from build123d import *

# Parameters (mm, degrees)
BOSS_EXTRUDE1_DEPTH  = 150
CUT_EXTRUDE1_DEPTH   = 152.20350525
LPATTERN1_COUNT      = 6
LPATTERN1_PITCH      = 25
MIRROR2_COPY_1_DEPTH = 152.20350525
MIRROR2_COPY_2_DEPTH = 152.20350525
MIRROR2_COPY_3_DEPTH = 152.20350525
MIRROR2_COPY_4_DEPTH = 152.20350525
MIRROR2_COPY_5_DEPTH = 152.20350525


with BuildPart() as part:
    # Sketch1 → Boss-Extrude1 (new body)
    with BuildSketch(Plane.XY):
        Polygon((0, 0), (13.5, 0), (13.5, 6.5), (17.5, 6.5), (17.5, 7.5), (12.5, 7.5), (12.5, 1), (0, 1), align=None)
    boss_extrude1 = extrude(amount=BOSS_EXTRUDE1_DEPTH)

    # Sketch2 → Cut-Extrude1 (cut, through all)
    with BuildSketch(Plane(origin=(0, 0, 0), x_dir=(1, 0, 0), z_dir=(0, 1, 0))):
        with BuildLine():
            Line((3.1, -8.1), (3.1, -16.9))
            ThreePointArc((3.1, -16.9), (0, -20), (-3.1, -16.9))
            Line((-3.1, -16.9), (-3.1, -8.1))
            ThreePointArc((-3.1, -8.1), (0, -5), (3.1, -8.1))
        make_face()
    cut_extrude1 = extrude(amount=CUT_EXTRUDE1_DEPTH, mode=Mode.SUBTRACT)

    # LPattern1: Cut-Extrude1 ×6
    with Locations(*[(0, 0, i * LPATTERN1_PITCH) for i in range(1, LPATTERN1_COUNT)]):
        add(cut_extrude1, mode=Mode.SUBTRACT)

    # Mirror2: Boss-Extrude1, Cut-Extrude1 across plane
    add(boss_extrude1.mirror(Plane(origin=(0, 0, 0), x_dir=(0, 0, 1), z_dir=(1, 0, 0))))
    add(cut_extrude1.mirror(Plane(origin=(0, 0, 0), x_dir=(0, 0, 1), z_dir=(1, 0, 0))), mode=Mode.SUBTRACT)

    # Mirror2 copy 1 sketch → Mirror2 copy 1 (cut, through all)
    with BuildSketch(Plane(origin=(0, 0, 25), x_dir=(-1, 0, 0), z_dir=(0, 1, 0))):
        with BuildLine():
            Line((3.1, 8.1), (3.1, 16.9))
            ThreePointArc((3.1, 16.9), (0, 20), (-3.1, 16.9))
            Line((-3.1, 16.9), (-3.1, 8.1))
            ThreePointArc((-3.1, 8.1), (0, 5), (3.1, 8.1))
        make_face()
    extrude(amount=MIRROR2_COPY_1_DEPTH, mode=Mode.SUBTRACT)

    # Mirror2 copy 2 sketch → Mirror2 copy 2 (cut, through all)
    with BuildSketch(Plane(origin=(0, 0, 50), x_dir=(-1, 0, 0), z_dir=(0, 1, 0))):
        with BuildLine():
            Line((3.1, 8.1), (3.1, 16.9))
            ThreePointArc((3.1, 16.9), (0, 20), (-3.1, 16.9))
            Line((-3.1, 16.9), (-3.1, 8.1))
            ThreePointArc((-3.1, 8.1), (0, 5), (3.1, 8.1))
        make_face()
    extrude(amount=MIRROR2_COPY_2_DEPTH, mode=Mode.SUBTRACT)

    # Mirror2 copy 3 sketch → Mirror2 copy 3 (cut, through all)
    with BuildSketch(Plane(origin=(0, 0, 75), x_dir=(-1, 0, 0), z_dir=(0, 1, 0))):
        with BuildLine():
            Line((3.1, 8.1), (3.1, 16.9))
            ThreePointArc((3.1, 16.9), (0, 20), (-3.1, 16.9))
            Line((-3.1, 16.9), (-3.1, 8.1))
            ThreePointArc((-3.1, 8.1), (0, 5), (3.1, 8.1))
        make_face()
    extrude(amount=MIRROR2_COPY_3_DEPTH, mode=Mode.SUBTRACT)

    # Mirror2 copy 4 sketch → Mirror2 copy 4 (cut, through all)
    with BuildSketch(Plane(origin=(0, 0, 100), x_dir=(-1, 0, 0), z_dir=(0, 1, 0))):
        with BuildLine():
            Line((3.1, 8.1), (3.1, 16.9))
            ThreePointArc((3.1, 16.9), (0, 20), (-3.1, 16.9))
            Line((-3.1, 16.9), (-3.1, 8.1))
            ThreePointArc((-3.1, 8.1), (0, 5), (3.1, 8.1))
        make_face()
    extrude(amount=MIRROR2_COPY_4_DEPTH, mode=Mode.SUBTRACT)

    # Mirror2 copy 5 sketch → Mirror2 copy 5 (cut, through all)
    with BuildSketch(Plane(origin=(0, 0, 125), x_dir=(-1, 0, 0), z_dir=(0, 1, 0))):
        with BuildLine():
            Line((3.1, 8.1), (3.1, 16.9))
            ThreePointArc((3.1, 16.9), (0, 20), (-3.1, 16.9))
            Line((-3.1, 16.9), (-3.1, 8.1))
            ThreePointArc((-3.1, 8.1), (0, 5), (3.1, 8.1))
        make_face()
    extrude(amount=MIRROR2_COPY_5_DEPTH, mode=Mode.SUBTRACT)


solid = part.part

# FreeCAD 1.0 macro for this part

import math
import FreeCAD as App
import Part
import Sketcher
Q = App.Units.Quantity


def add_polygon(sketch, points):
    """Adds a closed chain of lines whose ends are joined by coincident constraints."""
    first, n = sketch.GeometryCount, len(points)
    for a, b in zip(points, points[1:] + points[:1]):
        sketch.addGeometry(Part.LineSegment(App.Vector(*a, 0), App.Vector(*b, 0)), False)
    for i in range(n):
        sketch.addConstraint(Sketcher.Constraint("Coincident", first + i, 2, first + (i + 1) % n, 1))

doc = App.newDocument("Part")
body = doc.addObject("PartDesign::Body", "Body")

# Sketch on XY plane
sketch1 = doc.addObject("Sketcher::SketchObject", "Sketch")
body.addObject(sketch1)
sketch1.AttachmentSupport = (doc.XY_Plane, [""])
sketch1.MapMode = "FlatFace"
add_polygon(sketch1, [(0, 0), (13.5, 0), (13.5, 6.5), (17.5, 6.5), (17.5, 7.5), (12.5, 7.5), (12.5, 1), (0, 1)])  # lines 0-7
sketch1.addConstraint(Sketcher.Constraint("Horizontal", 0))
sketch1.addConstraint(Sketcher.Constraint("Vertical", 1))
sketch1.addConstraint(Sketcher.Constraint("Horizontal", 2))
sketch1.addConstraint(Sketcher.Constraint("Vertical", 3))
sketch1.addConstraint(Sketcher.Constraint("Horizontal", 4))
sketch1.addConstraint(Sketcher.Constraint("Vertical", 5))
sketch1.addConstraint(Sketcher.Constraint("Horizontal", 6))
sketch1.addConstraint(Sketcher.Constraint("Vertical", 7))
sketch1.addConstraint(Sketcher.Constraint("Coincident", 7, 2, -1, 1))
sketch1.addConstraint(Sketcher.Constraint("Equal", 1, 5))
sketch1.addConstraint(Sketcher.Constraint("DistanceX", 2, 1, 2, 2, Q("4 mm")))
sketch1.addConstraint(Sketcher.Constraint("DistanceX", 4, 2, 4, 1, Q("5 mm")))
sketch1.addConstraint(Sketcher.Constraint("DistanceY", 3, 1, 3, 2, Q("1 mm")))
sketch1.addConstraint(Sketcher.Constraint("DistanceX", 0, 1, 0, 2, Q("13.5 mm")))
sketch1.addConstraint(Sketcher.Constraint("DistanceY", 1, 1, 1, 2, Q("6.5 mm")))
pad1 = doc.addObject("PartDesign::Pad", "Pad")
body.addObject(pad1)
pad1.Profile = sketch1
pad1.Length = 150

# Sketch on XZ plane
sketch2 = doc.addObject("Sketcher::SketchObject", "Sketch001")
body.addObject(sketch2)
sketch2.AttachmentSupport = (doc.XZ_Plane, [""])
sketch2.MapMode = "FlatFace"
sketch2.addGeometry(Part.LineSegment(App.Vector(3.1, 16.9, 0), App.Vector(3.1, 8.1, 0)), False)
sketch2.addGeometry(Part.ArcOfCircle(Part.Circle(App.Vector(0, 8.1, 0), App.Vector(0, 0, 1), 3.1), math.radians(180), math.radians(360)), False)
sketch2.addGeometry(Part.LineSegment(App.Vector(-3.1, 8.1, 0), App.Vector(-3.1, 16.9, 0)), False)
sketch2.addGeometry(Part.ArcOfCircle(Part.Circle(App.Vector(0, 16.9, 0), App.Vector(0, 0, 1), 3.1), math.radians(0), math.radians(180)), False)
sketch2.addConstraint(Sketcher.Constraint("Tangent", 0, 2, 1, 2))
sketch2.addConstraint(Sketcher.Constraint("Tangent", 1, 1, 2, 1))
sketch2.addConstraint(Sketcher.Constraint("Tangent", 2, 2, 3, 2))
sketch2.addConstraint(Sketcher.Constraint("Tangent", 3, 1, 0, 1))
sketch2.addConstraint(Sketcher.Constraint("Vertical", 0))
sketch2.addConstraint(Sketcher.Constraint("Vertical", 2))
sketch2.addConstraint(Sketcher.Constraint("PointOnObject", 1, 3, -2))
sketch2.addConstraint(Sketcher.Constraint("Radius", 1, Q("3.1 mm")))
sketch2.addConstraint(Sketcher.Constraint("DistanceY", 0, 2, 0, 1, Q("8.8 mm")))
sketch2.addConstraint(Sketcher.Constraint("DistanceY", -1, 1, 1, 3, Q("8.1 mm")))
pocket1 = doc.addObject("PartDesign::Pocket", "Pocket")
body.addObject(pocket1)
pocket1.Profile = sketch2
pocket1.Type = "ThroughAll"
doc.recompute()

linearpattern = doc.addObject("PartDesign::LinearPattern", "LinearPattern")
body.addObject(linearpattern)
linearpattern.Originals = [pocket1]
linearpattern.Direction = (doc.Z_Axis, [""])
linearpattern.Mode = "offset"
linearpattern.Offset = 25
linearpattern.Occurrences = 6
body.Tip = linearpattern
doc.recompute()

mirrored = doc.addObject("PartDesign::Mirrored", "Mirrored")
body.addObject(mirrored)
mirrored.Originals = [pad1, pocket1]
mirrored.MirrorPlane = (doc.YZ_Plane, [""])
body.Tip = mirrored

# Sketch on XZ plane
sketch3 = doc.addObject("Sketcher::SketchObject", "Sketch002")
body.addObject(sketch3)
sketch3.AttachmentSupport = (doc.XZ_Plane, [""])
sketch3.MapMode = "FlatFace"
sketch3.addGeometry(Part.LineSegment(App.Vector(-3.1, 33.1, 0), App.Vector(-3.1, 41.9, 0)), False)
sketch3.addGeometry(Part.ArcOfCircle(Part.Circle(App.Vector(0, 41.9, 0), App.Vector(0, 0, 1), 3.1), math.radians(0), math.radians(180)), False)
sketch3.addGeometry(Part.LineSegment(App.Vector(3.1, 41.9, 0), App.Vector(3.1, 33.1, 0)), False)
sketch3.addGeometry(Part.ArcOfCircle(Part.Circle(App.Vector(0, 33.1, 0), App.Vector(0, 0, 1), 3.1), math.radians(180), math.radians(360)), False)
sketch3.addConstraint(Sketcher.Constraint("Tangent", 0, 2, 1, 2))
sketch3.addConstraint(Sketcher.Constraint("Tangent", 1, 1, 2, 1))
sketch3.addConstraint(Sketcher.Constraint("Tangent", 2, 2, 3, 2))
sketch3.addConstraint(Sketcher.Constraint("Tangent", 3, 1, 0, 1))
sketch3.addConstraint(Sketcher.Constraint("Vertical", 0))
sketch3.addConstraint(Sketcher.Constraint("Vertical", 2))
sketch3.addConstraint(Sketcher.Constraint("PointOnObject", 1, 3, -2))
sketch3.addConstraint(Sketcher.Constraint("Radius", 1, Q("3.1 mm")))
sketch3.addConstraint(Sketcher.Constraint("DistanceY", 0, 1, 0, 2, Q("8.8 mm")))
sketch3.addConstraint(Sketcher.Constraint("DistanceY", -1, 1, 1, 3, Q("41.9 mm")))
pocket2 = doc.addObject("PartDesign::Pocket", "Pocket001")
body.addObject(pocket2)
pocket2.Profile = sketch3
pocket2.Type = "ThroughAll"

# Sketch on XZ plane
sketch4 = doc.addObject("Sketcher::SketchObject", "Sketch003")
body.addObject(sketch4)
sketch4.AttachmentSupport = (doc.XZ_Plane, [""])
sketch4.MapMode = "FlatFace"
sketch4.addGeometry(Part.LineSegment(App.Vector(-3.1, 58.1, 0), App.Vector(-3.1, 66.9, 0)), False)
sketch4.addGeometry(Part.ArcOfCircle(Part.Circle(App.Vector(0, 66.9, 0), App.Vector(0, 0, 1), 3.1), math.radians(0), math.radians(180)), False)
sketch4.addGeometry(Part.LineSegment(App.Vector(3.1, 66.9, 0), App.Vector(3.1, 58.1, 0)), False)
sketch4.addGeometry(Part.ArcOfCircle(Part.Circle(App.Vector(0, 58.1, 0), App.Vector(0, 0, 1), 3.1), math.radians(180), math.radians(360)), False)
sketch4.addConstraint(Sketcher.Constraint("Tangent", 0, 2, 1, 2))
sketch4.addConstraint(Sketcher.Constraint("Tangent", 1, 1, 2, 1))
sketch4.addConstraint(Sketcher.Constraint("Tangent", 2, 2, 3, 2))
sketch4.addConstraint(Sketcher.Constraint("Tangent", 3, 1, 0, 1))
sketch4.addConstraint(Sketcher.Constraint("Vertical", 0))
sketch4.addConstraint(Sketcher.Constraint("Vertical", 2))
sketch4.addConstraint(Sketcher.Constraint("PointOnObject", 1, 3, -2))
sketch4.addConstraint(Sketcher.Constraint("Radius", 1, Q("3.1 mm")))
sketch4.addConstraint(Sketcher.Constraint("DistanceY", 0, 1, 0, 2, Q("8.8 mm")))
sketch4.addConstraint(Sketcher.Constraint("DistanceY", -1, 1, 1, 3, Q("66.9 mm")))
pocket3 = doc.addObject("PartDesign::Pocket", "Pocket002")
body.addObject(pocket3)
pocket3.Profile = sketch4
pocket3.Type = "ThroughAll"

# Sketch on XZ plane
sketch5 = doc.addObject("Sketcher::SketchObject", "Sketch004")
body.addObject(sketch5)
sketch5.AttachmentSupport = (doc.XZ_Plane, [""])
sketch5.MapMode = "FlatFace"
sketch5.addGeometry(Part.LineSegment(App.Vector(-3.1, 83.1, 0), App.Vector(-3.1, 91.9, 0)), False)
sketch5.addGeometry(Part.ArcOfCircle(Part.Circle(App.Vector(0, 91.9, 0), App.Vector(0, 0, 1), 3.1), math.radians(0), math.radians(180)), False)
sketch5.addGeometry(Part.LineSegment(App.Vector(3.1, 91.9, 0), App.Vector(3.1, 83.1, 0)), False)
sketch5.addGeometry(Part.ArcOfCircle(Part.Circle(App.Vector(0, 83.1, 0), App.Vector(0, 0, 1), 3.1), math.radians(180), math.radians(360)), False)
sketch5.addConstraint(Sketcher.Constraint("Tangent", 0, 2, 1, 2))
sketch5.addConstraint(Sketcher.Constraint("Tangent", 1, 1, 2, 1))
sketch5.addConstraint(Sketcher.Constraint("Tangent", 2, 2, 3, 2))
sketch5.addConstraint(Sketcher.Constraint("Tangent", 3, 1, 0, 1))
sketch5.addConstraint(Sketcher.Constraint("Vertical", 0))
sketch5.addConstraint(Sketcher.Constraint("Vertical", 2))
sketch5.addConstraint(Sketcher.Constraint("PointOnObject", 1, 3, -2))
sketch5.addConstraint(Sketcher.Constraint("Radius", 1, Q("3.1 mm")))
sketch5.addConstraint(Sketcher.Constraint("DistanceY", 0, 1, 0, 2, Q("8.8 mm")))
sketch5.addConstraint(Sketcher.Constraint("DistanceY", -1, 1, 1, 3, Q("91.9 mm")))
pocket4 = doc.addObject("PartDesign::Pocket", "Pocket003")
body.addObject(pocket4)
pocket4.Profile = sketch5
pocket4.Type = "ThroughAll"

# Sketch on XZ plane
sketch6 = doc.addObject("Sketcher::SketchObject", "Sketch005")
body.addObject(sketch6)
sketch6.AttachmentSupport = (doc.XZ_Plane, [""])
sketch6.MapMode = "FlatFace"
sketch6.addGeometry(Part.LineSegment(App.Vector(-3.1, 108.1, 0), App.Vector(-3.1, 116.9, 0)), False)
sketch6.addGeometry(Part.ArcOfCircle(Part.Circle(App.Vector(0, 116.9, 0), App.Vector(0, 0, 1), 3.1), math.radians(0), math.radians(180)), False)
sketch6.addGeometry(Part.LineSegment(App.Vector(3.1, 116.9, 0), App.Vector(3.1, 108.1, 0)), False)
sketch6.addGeometry(Part.ArcOfCircle(Part.Circle(App.Vector(0, 108.1, 0), App.Vector(0, 0, 1), 3.1), math.radians(180), math.radians(360)), False)
sketch6.addConstraint(Sketcher.Constraint("Tangent", 0, 2, 1, 2))
sketch6.addConstraint(Sketcher.Constraint("Tangent", 1, 1, 2, 1))
sketch6.addConstraint(Sketcher.Constraint("Tangent", 2, 2, 3, 2))
sketch6.addConstraint(Sketcher.Constraint("Tangent", 3, 1, 0, 1))
sketch6.addConstraint(Sketcher.Constraint("Vertical", 0))
sketch6.addConstraint(Sketcher.Constraint("Vertical", 2))
sketch6.addConstraint(Sketcher.Constraint("PointOnObject", 1, 3, -2))
sketch6.addConstraint(Sketcher.Constraint("Radius", 1, Q("3.1 mm")))
sketch6.addConstraint(Sketcher.Constraint("DistanceY", 0, 1, 0, 2, Q("8.8 mm")))
sketch6.addConstraint(Sketcher.Constraint("DistanceY", -1, 1, 1, 3, Q("116.9 mm")))
pocket5 = doc.addObject("PartDesign::Pocket", "Pocket004")
body.addObject(pocket5)
pocket5.Profile = sketch6
pocket5.Type = "ThroughAll"

# Sketch on XZ plane
sketch7 = doc.addObject("Sketcher::SketchObject", "Sketch006")
body.addObject(sketch7)
sketch7.AttachmentSupport = (doc.XZ_Plane, [""])
sketch7.MapMode = "FlatFace"
sketch7.addGeometry(Part.LineSegment(App.Vector(-3.1, 133.1, 0), App.Vector(-3.1, 141.9, 0)), False)
sketch7.addGeometry(Part.ArcOfCircle(Part.Circle(App.Vector(0, 141.9, 0), App.Vector(0, 0, 1), 3.1), math.radians(0), math.radians(180)), False)
sketch7.addGeometry(Part.LineSegment(App.Vector(3.1, 141.9, 0), App.Vector(3.1, 133.1, 0)), False)
sketch7.addGeometry(Part.ArcOfCircle(Part.Circle(App.Vector(0, 133.1, 0), App.Vector(0, 0, 1), 3.1), math.radians(180), math.radians(360)), False)
sketch7.addConstraint(Sketcher.Constraint("Tangent", 0, 2, 1, 2))
sketch7.addConstraint(Sketcher.Constraint("Tangent", 1, 1, 2, 1))
sketch7.addConstraint(Sketcher.Constraint("Tangent", 2, 2, 3, 2))
sketch7.addConstraint(Sketcher.Constraint("Tangent", 3, 1, 0, 1))
sketch7.addConstraint(Sketcher.Constraint("Vertical", 0))
sketch7.addConstraint(Sketcher.Constraint("Vertical", 2))
sketch7.addConstraint(Sketcher.Constraint("PointOnObject", 1, 3, -2))
sketch7.addConstraint(Sketcher.Constraint("Radius", 1, Q("3.1 mm")))
sketch7.addConstraint(Sketcher.Constraint("DistanceY", 0, 1, 0, 2, Q("8.8 mm")))
sketch7.addConstraint(Sketcher.Constraint("DistanceY", -1, 1, 1, 3, Q("141.9 mm")))
pocket6 = doc.addObject("PartDesign::Pocket", "Pocket005")
body.addObject(pocket6)
pocket6.Profile = sketch7
pocket6.Type = "ThroughAll"

doc.recompute()
